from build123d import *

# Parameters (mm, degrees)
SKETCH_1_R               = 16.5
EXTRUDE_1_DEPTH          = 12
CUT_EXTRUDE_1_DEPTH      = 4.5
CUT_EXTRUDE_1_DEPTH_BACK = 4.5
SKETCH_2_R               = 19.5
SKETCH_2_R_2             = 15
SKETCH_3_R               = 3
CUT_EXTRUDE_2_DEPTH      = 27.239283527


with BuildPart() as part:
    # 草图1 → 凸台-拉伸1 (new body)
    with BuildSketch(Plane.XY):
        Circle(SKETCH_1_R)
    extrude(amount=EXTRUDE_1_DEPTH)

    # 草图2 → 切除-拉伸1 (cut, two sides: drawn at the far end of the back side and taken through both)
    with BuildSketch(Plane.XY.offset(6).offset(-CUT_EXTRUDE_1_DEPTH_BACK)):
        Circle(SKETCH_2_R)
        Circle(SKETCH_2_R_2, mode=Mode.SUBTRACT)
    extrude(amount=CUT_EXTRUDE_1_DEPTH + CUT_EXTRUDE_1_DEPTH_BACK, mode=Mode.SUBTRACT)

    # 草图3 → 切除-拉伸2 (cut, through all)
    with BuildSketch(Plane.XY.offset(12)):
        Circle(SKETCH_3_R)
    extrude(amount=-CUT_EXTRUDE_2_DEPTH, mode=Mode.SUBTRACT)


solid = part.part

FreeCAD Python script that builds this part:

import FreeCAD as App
import Part
import Sketcher
Q = App.Units.Quantity

doc = App.newDocument("Part")
body = doc.addObject("PartDesign::Body", "Body")

sketch1 = body.newObject("Sketcher::SketchObject", "Sketch")
sketch1.AttachmentSupport = (doc.getObject("XY_Plane"), [""])
sketch1.MapMode = "FlatFace"
sketch1.addGeometry(Part.Circle(App.Vector(0, 0, 0), App.Vector(0, 0, 1), 16), False)
sketch1.addConstraint([
    Sketcher.Constraint("Coincident", 0, 3, -1, 1),
    Sketcher.Constraint("Diameter", 0, Q("33 mm")),
])
pad1 = body.newObject("PartDesign::Pad", "Pad")
pad1.Profile = sketch1
pad1.Length = 12

sketch2 = body.newObject("Sketcher::SketchObject", "Sketch001")
sketch2.AttachmentSupport = (doc.getObject("XY_Plane"), [""])
sketch2.MapMode = "FlatFace"
sketch2.AttachmentOffset = App.Placement(App.Vector(0, 0, 6), App.Rotation())
sketch2.addGeometry([
    Part.Circle(App.Vector(0, 0, 0), App.Vector(0, 0, 1), 20),
    Part.Circle(App.Vector(0, 0, 0), App.Vector(0, 0, 1), 15),
], False)
sketch2.addConstraint([
    Sketcher.Constraint("Coincident", 0, 3, -1, 1),
    Sketcher.Constraint("Coincident", 1, 3, -1, 1),
    Sketcher.Constraint("Diameter", 0, Q("39 mm")),
    Sketcher.Constraint("Diameter", 1, Q("30 mm")),
])
pocket1 = body.newObject("PartDesign::Pocket", "Pocket")
pocket1.Profile = sketch2
pocket1.Type = "TwoLengths"
pocket1.Length = 4.5
pocket1.Length2 = 4.5
pocket1.Reversed = True

sketch3 = body.newObject("Sketcher::SketchObject", "Sketch002")
sketch3.AttachmentSupport = (doc.getObject("XY_Plane"), [""])
sketch3.MapMode = "FlatFace"
sketch3.AttachmentOffset = App.Placement(App.Vector(0, 0, 12), App.Rotation())
sketch3.addGeometry(Part.Circle(App.Vector(0, 0, 0), App.Vector(0, 0, 1), 3), False)
sketch3.addConstraint([
    Sketcher.Constraint("Coincident", 0, 3, -1, 1),
    Sketcher.Constraint("Diameter", 0, Q("6 mm")),
])
pocket2 = body.newObject("PartDesign::Pocket", "Pocket001")
pocket2.Profile = sketch3
pocket2.Type = "ThroughAll"

doc.recompute()
